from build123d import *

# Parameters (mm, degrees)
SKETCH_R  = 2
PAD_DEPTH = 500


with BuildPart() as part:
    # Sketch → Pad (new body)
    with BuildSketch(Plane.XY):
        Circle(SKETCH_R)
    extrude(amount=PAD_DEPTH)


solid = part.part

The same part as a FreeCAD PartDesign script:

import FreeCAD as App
import Part
import Sketcher

V = App.Vector
Q = App.Units.Quantity

doc = App.newDocument("Part")
body = doc.addObject("PartDesign::Body", "Body")

# Sketch on XY plane
sketch1 = body.newObject("Sketcher::SketchObject", "Sketch")
sketch1.AttachmentSupport = (doc.getObject("XY_Plane"), [""])
sketch1.MapMode = "FlatFace"
sketch1.addGeometry(Part.Circle(V(0, 0, 0), V(0, 0, 1), 2), False)
sketch1.addConstraint([
    Sketcher.Constraint("Coincident", 0, 3, -1, 1),
    Sketcher.Constraint("Diameter", 0, Q("4 mm")),
])
pad1 = body.newObject("PartDesign::Pad", "Pad")
pad1.Profile = sketch1
pad1.Length = 500

doc.recompute()
